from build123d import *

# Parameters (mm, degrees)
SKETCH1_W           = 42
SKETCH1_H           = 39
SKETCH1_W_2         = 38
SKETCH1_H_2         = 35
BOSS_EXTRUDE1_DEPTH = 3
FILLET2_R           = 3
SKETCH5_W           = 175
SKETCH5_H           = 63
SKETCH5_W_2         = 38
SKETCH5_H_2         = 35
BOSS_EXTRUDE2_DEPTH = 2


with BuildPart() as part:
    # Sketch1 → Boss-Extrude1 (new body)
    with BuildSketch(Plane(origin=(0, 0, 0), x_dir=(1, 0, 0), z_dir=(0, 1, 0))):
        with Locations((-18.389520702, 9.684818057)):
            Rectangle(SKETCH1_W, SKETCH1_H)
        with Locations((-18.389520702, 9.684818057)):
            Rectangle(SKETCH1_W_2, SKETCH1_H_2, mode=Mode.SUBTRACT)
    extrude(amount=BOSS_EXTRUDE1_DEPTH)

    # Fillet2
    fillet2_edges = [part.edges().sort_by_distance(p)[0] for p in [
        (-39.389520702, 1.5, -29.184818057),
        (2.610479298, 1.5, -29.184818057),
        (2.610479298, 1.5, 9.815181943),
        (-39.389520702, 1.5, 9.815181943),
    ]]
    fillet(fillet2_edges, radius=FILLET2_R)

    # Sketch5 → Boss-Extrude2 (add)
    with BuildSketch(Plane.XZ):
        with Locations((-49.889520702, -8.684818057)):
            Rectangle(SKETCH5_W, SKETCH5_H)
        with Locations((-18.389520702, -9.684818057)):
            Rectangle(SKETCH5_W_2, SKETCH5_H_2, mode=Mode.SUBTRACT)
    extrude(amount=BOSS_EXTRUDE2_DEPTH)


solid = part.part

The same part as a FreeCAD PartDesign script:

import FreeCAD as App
import Part
import Sketcher

V = App.Vector
Q = App.Units.Quantity


def edges_at(feature, points):
    """Names of the edges that pass closest to the given points."""
    edges = feature.Shape.Edges
    near = lambda p: min(range(len(edges)), key=lambda i: edges[i].distToShape(Part.Vertex(*p))[0])
    return sorted({f"Edge{near(p) + 1}" for p in points})


def add_polygon(sketch, points):
    """Adds a closed chain of lines whose ends are joined by coincident constraints."""
    first, n = sketch.GeometryCount, len(points)
    for a, b in zip(points, points[1:] + points[:1]):
        sketch.addGeometry(Part.LineSegment(App.Vector(*a, 0), App.Vector(*b, 0)), False)
    for i in range(n):
        sketch.addConstraint(Sketcher.Constraint("Coincident", first + i, 2, first + (i + 1) % n, 1))

doc = App.newDocument("Part")
body = doc.addObject("PartDesign::Body", "Body")

# Sketch on XZ plane
sketch1 = body.newObject("Sketcher::SketchObject", "Sketch")
sketch1.AttachmentSupport = (doc.getObject("XZ_Plane"), [""])
sketch1.MapMode = "FlatFace"
add_polygon(sketch1, [(-39, -29), (-39, 10), (3, 10), (3, -29)])  # lines 0-3
add_polygon(sketch1, [(1, 8), (-37, 8), (-37, -27), (1, -27)])  # lines 4-7
sketch1.addConstraint([
    Sketcher.Constraint("Vertical", 0),
    Sketcher.Constraint("Horizontal", 1),
    Sketcher.Constraint("Vertical", 2),
    Sketcher.Constraint("Horizontal", 3),
    Sketcher.Constraint("Horizontal", 4),
    Sketcher.Constraint("Vertical", 5),
    Sketcher.Constraint("Horizontal", 6),
    Sketcher.Constraint("Vertical", 7),
    Sketcher.Constraint("DistanceX", 1, 1, 1, 2, Q("42 mm")),
    Sketcher.Constraint("DistanceX", 4, 2, 4, 1, Q("38 mm")),
    Sketcher.Constraint("DistanceY", 0, 1, 0, 2, Q("39 mm")),
    Sketcher.Constraint("DistanceY", 5, 2, 5, 1, Q("35 mm")),
    Sketcher.Constraint("DistanceX", 0, 2, 4, 2, Q("2 mm")),
    Sketcher.Constraint("DistanceY", 4, 2, 0, 2, Q("2 mm")),
    Sketcher.Constraint("DistanceX", 0, 2, -1, 1, Q("39.389521 mm")),
    Sketcher.Constraint("DistanceY", -1, 1, 0, 2, Q("9.815182 mm")),
])
pad1 = body.newObject("PartDesign::Pad", "Pad")
pad1.Profile = sketch1
pad1.Length = 3
pad1.Reversed = True
doc.recompute()

fillet = body.newObject("PartDesign::Fillet", "Fillet")
fillet.Base = (pad1, edges_at(pad1, [
    (-39.39, 1.5, -29.185),
    (2.61, 1.5, -29.185),
    (2.61, 1.5, 9.815),
    (-39.39, 1.5, 9.815),
]))
fillet.Radius = 3

# Sketch on XZ plane
sketch2 = body.newObject("Sketcher::SketchObject", "Sketch001")
sketch2.AttachmentSupport = (doc.getObject("XZ_Plane"), [""])
sketch2.MapMode = "FlatFace"
add_polygon(sketch2, [(-137, 23), (-137, -40), (38, -40), (38, 23)])  # lines 0-3
add_polygon(sketch2, [(1, -27), (-37, -27), (-37, 8), (1, 8)])  # lines 4-7
sketch2.addConstraint([
    Sketcher.Constraint("Vertical", 0),
    Sketcher.Constraint("Horizontal", 1),
    Sketcher.Constraint("Vertical", 2),
    Sketcher.Constraint("Horizontal", 3),
    Sketcher.Constraint("Horizontal", 4),
    Sketcher.Constraint("Vertical", 5),
    Sketcher.Constraint("Horizontal", 6),
    Sketcher.Constraint("Vertical", 7),
    Sketcher.Constraint("DistanceX", 1, 1, 1, 2, Q("175 mm")),
    Sketcher.Constraint("DistanceX", 4, 2, 4, 1, Q("38 mm")),
    Sketcher.Constraint("DistanceY", 0, 2, 0, 1, Q("63 mm")),
    Sketcher.Constraint("DistanceY", 5, 1, 5, 2, Q("35 mm")),
    Sketcher.Constraint("DistanceX", 4, 2, 1, 2, Q("75 mm")),
    Sketcher.Constraint("DistanceY", 1, 2, 4, 2, Q("13 mm")),
    Sketcher.Constraint("DistanceX", 0, 2, -1, 1, Q("137.389521 mm")),
    Sketcher.Constraint("DistanceY", 0, 2, -1, 1, Q("40.184818 mm")),
])
pad2 = body.newObject("PartDesign::Pad", "Pad001")
pad2.Profile = sketch2
pad2.Length = 2

doc.recompute()
